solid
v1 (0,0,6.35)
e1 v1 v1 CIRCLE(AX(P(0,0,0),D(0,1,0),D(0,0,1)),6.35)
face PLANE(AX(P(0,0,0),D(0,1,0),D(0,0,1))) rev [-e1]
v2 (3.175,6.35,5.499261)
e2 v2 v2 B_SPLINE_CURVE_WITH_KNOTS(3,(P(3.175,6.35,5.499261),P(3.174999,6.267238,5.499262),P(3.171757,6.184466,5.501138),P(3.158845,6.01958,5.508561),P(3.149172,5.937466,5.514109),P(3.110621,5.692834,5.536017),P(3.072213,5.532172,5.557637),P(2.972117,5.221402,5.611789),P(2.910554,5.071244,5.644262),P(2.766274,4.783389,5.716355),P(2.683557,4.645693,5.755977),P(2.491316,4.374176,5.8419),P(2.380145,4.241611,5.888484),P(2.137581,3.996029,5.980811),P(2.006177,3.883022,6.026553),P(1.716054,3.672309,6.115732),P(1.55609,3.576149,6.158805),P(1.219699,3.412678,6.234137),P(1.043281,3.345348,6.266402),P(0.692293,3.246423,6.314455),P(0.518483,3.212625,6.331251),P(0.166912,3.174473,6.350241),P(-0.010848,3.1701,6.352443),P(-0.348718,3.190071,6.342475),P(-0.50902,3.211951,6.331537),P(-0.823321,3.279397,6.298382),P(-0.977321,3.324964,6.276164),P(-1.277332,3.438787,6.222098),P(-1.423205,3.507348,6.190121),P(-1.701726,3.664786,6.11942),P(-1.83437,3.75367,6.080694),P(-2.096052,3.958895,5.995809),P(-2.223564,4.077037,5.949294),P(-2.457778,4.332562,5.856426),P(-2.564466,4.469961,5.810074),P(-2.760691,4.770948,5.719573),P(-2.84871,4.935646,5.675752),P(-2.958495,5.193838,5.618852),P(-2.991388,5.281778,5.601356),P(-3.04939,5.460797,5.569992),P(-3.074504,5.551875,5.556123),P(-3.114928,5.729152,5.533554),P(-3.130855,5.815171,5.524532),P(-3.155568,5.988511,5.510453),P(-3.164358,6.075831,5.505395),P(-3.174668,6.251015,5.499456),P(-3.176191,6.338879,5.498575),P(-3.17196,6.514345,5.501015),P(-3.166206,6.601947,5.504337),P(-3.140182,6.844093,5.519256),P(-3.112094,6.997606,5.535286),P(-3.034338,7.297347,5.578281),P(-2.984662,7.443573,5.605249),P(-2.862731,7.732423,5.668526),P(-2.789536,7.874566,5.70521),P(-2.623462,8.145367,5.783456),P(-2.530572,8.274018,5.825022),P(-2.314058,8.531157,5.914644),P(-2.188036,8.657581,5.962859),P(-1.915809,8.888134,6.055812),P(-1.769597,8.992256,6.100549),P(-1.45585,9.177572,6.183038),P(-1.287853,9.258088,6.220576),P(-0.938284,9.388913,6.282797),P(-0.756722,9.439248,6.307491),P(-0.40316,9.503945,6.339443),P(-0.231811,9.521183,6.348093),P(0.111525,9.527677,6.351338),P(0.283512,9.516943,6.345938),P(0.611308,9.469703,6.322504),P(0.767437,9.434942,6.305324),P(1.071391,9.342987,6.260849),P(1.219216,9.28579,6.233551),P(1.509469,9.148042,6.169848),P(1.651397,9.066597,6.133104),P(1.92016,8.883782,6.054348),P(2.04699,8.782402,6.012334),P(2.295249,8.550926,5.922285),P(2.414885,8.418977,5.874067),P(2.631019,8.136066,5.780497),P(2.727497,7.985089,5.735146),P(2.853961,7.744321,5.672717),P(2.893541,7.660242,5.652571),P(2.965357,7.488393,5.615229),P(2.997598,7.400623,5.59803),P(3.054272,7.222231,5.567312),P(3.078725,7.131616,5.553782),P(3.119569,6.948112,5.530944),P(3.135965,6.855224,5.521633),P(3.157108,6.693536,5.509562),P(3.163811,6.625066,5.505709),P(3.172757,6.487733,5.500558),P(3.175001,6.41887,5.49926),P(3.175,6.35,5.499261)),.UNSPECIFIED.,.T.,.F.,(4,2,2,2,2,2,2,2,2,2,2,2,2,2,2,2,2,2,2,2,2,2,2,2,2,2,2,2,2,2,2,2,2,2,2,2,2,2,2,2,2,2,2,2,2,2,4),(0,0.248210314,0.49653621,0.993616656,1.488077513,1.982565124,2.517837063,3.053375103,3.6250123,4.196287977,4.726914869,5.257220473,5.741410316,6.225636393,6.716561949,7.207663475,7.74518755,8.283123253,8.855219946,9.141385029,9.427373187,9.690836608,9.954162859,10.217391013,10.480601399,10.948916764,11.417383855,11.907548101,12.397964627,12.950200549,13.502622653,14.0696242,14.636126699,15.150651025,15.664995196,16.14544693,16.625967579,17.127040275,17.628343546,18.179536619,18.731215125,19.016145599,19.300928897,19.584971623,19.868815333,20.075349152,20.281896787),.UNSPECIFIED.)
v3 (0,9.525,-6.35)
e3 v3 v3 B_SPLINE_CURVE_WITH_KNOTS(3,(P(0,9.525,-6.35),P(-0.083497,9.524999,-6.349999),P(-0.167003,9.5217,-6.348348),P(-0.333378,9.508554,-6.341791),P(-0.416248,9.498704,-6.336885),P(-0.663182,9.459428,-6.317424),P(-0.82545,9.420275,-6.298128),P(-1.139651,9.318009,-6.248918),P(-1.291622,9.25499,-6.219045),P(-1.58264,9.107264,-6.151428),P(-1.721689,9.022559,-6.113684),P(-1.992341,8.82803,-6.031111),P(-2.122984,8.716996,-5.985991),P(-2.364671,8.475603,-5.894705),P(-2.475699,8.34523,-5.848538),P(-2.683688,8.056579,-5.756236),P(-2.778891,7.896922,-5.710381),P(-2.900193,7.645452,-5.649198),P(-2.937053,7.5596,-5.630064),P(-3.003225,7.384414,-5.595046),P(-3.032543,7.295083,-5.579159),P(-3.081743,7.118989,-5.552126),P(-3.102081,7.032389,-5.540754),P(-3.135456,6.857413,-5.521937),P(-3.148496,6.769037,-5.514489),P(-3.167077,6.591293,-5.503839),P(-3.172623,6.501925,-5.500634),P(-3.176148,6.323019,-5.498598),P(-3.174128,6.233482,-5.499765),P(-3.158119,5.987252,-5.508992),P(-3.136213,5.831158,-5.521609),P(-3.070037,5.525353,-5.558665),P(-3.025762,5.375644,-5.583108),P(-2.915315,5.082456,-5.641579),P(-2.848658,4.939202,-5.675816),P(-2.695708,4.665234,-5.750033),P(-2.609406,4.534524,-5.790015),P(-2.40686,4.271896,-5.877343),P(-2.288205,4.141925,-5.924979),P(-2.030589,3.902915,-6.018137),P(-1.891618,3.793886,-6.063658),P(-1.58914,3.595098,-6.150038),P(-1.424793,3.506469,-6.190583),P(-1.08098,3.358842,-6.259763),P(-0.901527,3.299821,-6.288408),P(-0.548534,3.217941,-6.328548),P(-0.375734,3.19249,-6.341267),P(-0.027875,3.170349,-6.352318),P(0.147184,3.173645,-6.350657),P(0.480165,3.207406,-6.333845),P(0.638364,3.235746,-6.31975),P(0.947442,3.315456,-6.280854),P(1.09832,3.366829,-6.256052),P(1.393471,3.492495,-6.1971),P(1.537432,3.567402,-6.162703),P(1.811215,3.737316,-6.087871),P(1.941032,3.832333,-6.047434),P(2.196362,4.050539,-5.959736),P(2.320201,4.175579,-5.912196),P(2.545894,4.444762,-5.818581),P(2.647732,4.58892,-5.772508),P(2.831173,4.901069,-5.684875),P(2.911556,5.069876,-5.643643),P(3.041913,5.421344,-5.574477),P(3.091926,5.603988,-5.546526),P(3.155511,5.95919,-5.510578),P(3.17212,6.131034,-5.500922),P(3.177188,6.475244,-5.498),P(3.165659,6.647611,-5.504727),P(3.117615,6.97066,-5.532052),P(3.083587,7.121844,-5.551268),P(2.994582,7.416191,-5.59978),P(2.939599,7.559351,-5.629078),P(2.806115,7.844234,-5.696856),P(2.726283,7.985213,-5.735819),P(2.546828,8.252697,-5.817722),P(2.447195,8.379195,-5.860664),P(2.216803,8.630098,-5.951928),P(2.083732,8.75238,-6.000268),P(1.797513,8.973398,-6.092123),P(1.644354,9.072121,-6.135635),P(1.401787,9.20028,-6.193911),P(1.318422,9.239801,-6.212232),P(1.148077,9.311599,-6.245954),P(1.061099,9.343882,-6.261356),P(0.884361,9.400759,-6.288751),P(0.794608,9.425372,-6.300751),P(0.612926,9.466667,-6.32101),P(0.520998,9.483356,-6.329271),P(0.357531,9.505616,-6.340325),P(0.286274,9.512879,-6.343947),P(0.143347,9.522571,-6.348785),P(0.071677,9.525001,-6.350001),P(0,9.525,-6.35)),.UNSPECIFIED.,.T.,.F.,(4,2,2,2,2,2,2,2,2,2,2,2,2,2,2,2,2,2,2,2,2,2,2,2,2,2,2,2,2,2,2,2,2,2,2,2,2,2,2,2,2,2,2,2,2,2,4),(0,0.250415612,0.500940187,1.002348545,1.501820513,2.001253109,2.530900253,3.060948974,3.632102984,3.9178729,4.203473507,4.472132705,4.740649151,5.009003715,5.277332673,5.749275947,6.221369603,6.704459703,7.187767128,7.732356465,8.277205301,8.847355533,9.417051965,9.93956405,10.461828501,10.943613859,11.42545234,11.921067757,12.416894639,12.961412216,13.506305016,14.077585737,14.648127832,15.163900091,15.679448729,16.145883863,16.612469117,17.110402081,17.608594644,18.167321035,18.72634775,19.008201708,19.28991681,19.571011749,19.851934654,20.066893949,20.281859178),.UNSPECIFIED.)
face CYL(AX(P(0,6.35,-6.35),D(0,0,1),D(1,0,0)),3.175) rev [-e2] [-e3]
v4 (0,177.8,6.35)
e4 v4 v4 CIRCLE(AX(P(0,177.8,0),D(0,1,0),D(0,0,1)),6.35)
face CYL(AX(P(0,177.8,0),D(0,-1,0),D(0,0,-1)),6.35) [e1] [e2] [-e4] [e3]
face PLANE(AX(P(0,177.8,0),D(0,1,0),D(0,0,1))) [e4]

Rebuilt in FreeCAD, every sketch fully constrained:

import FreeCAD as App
import Part
import Sketcher
from FreeCAD import Vector
Q = App.Units.Quantity

doc = App.newDocument("Part")
body = doc.addObject("PartDesign::Body", "Body")

sketch1 = doc.addObject("Sketcher::SketchObject", "Sketch")
body.addObject(sketch1)
sketch1.AttachmentSupport = (doc.XZ_Plane, [""])
sketch1.MapMode = "FlatFace"
sketch1.addGeometry(Part.Circle(Vector(0, 0, 0), Vector(0, 0, 1), 6), False)
sketch1.addConstraint([
    Sketcher.Constraint("Coincident", 0, 3, -1, 1),
    Sketcher.Constraint("Diameter", 0, Q("0.5 in")),
])
pad1 = doc.addObject("PartDesign::Pad", "Pad")
body.addObject(pad1)
pad1.Profile = sketch1
pad1.Length = Q("7 in")
pad1.Reversed = True

sketch2 = doc.addObject("Sketcher::SketchObject", "Sketch001")
body.addObject(sketch2)
sketch2.AttachmentSupport = (doc.XY_Plane, [""])
sketch2.MapMode = "FlatFace"
sketch2.addGeometry(Part.Circle(Vector(0, 6.3, 0), Vector(0, 0, 1), 3.2), False)
sketch2.addConstraint([
    Sketcher.Constraint("PointOnObject", 0, 3, -2),
    Sketcher.Constraint("Diameter", 0, Q("0.25 in")),
    Sketcher.Constraint("DistanceY", -1, 1, 0, 3, Q("0.25 in")),
])
pocket1 = doc.addObject("PartDesign::Pocket", "Pocket")
body.addObject(pocket1)
pocket1.Profile = sketch2
pocket1.Type = "ThroughAll"
pocket1.Midplane = True

doc.recompute()
